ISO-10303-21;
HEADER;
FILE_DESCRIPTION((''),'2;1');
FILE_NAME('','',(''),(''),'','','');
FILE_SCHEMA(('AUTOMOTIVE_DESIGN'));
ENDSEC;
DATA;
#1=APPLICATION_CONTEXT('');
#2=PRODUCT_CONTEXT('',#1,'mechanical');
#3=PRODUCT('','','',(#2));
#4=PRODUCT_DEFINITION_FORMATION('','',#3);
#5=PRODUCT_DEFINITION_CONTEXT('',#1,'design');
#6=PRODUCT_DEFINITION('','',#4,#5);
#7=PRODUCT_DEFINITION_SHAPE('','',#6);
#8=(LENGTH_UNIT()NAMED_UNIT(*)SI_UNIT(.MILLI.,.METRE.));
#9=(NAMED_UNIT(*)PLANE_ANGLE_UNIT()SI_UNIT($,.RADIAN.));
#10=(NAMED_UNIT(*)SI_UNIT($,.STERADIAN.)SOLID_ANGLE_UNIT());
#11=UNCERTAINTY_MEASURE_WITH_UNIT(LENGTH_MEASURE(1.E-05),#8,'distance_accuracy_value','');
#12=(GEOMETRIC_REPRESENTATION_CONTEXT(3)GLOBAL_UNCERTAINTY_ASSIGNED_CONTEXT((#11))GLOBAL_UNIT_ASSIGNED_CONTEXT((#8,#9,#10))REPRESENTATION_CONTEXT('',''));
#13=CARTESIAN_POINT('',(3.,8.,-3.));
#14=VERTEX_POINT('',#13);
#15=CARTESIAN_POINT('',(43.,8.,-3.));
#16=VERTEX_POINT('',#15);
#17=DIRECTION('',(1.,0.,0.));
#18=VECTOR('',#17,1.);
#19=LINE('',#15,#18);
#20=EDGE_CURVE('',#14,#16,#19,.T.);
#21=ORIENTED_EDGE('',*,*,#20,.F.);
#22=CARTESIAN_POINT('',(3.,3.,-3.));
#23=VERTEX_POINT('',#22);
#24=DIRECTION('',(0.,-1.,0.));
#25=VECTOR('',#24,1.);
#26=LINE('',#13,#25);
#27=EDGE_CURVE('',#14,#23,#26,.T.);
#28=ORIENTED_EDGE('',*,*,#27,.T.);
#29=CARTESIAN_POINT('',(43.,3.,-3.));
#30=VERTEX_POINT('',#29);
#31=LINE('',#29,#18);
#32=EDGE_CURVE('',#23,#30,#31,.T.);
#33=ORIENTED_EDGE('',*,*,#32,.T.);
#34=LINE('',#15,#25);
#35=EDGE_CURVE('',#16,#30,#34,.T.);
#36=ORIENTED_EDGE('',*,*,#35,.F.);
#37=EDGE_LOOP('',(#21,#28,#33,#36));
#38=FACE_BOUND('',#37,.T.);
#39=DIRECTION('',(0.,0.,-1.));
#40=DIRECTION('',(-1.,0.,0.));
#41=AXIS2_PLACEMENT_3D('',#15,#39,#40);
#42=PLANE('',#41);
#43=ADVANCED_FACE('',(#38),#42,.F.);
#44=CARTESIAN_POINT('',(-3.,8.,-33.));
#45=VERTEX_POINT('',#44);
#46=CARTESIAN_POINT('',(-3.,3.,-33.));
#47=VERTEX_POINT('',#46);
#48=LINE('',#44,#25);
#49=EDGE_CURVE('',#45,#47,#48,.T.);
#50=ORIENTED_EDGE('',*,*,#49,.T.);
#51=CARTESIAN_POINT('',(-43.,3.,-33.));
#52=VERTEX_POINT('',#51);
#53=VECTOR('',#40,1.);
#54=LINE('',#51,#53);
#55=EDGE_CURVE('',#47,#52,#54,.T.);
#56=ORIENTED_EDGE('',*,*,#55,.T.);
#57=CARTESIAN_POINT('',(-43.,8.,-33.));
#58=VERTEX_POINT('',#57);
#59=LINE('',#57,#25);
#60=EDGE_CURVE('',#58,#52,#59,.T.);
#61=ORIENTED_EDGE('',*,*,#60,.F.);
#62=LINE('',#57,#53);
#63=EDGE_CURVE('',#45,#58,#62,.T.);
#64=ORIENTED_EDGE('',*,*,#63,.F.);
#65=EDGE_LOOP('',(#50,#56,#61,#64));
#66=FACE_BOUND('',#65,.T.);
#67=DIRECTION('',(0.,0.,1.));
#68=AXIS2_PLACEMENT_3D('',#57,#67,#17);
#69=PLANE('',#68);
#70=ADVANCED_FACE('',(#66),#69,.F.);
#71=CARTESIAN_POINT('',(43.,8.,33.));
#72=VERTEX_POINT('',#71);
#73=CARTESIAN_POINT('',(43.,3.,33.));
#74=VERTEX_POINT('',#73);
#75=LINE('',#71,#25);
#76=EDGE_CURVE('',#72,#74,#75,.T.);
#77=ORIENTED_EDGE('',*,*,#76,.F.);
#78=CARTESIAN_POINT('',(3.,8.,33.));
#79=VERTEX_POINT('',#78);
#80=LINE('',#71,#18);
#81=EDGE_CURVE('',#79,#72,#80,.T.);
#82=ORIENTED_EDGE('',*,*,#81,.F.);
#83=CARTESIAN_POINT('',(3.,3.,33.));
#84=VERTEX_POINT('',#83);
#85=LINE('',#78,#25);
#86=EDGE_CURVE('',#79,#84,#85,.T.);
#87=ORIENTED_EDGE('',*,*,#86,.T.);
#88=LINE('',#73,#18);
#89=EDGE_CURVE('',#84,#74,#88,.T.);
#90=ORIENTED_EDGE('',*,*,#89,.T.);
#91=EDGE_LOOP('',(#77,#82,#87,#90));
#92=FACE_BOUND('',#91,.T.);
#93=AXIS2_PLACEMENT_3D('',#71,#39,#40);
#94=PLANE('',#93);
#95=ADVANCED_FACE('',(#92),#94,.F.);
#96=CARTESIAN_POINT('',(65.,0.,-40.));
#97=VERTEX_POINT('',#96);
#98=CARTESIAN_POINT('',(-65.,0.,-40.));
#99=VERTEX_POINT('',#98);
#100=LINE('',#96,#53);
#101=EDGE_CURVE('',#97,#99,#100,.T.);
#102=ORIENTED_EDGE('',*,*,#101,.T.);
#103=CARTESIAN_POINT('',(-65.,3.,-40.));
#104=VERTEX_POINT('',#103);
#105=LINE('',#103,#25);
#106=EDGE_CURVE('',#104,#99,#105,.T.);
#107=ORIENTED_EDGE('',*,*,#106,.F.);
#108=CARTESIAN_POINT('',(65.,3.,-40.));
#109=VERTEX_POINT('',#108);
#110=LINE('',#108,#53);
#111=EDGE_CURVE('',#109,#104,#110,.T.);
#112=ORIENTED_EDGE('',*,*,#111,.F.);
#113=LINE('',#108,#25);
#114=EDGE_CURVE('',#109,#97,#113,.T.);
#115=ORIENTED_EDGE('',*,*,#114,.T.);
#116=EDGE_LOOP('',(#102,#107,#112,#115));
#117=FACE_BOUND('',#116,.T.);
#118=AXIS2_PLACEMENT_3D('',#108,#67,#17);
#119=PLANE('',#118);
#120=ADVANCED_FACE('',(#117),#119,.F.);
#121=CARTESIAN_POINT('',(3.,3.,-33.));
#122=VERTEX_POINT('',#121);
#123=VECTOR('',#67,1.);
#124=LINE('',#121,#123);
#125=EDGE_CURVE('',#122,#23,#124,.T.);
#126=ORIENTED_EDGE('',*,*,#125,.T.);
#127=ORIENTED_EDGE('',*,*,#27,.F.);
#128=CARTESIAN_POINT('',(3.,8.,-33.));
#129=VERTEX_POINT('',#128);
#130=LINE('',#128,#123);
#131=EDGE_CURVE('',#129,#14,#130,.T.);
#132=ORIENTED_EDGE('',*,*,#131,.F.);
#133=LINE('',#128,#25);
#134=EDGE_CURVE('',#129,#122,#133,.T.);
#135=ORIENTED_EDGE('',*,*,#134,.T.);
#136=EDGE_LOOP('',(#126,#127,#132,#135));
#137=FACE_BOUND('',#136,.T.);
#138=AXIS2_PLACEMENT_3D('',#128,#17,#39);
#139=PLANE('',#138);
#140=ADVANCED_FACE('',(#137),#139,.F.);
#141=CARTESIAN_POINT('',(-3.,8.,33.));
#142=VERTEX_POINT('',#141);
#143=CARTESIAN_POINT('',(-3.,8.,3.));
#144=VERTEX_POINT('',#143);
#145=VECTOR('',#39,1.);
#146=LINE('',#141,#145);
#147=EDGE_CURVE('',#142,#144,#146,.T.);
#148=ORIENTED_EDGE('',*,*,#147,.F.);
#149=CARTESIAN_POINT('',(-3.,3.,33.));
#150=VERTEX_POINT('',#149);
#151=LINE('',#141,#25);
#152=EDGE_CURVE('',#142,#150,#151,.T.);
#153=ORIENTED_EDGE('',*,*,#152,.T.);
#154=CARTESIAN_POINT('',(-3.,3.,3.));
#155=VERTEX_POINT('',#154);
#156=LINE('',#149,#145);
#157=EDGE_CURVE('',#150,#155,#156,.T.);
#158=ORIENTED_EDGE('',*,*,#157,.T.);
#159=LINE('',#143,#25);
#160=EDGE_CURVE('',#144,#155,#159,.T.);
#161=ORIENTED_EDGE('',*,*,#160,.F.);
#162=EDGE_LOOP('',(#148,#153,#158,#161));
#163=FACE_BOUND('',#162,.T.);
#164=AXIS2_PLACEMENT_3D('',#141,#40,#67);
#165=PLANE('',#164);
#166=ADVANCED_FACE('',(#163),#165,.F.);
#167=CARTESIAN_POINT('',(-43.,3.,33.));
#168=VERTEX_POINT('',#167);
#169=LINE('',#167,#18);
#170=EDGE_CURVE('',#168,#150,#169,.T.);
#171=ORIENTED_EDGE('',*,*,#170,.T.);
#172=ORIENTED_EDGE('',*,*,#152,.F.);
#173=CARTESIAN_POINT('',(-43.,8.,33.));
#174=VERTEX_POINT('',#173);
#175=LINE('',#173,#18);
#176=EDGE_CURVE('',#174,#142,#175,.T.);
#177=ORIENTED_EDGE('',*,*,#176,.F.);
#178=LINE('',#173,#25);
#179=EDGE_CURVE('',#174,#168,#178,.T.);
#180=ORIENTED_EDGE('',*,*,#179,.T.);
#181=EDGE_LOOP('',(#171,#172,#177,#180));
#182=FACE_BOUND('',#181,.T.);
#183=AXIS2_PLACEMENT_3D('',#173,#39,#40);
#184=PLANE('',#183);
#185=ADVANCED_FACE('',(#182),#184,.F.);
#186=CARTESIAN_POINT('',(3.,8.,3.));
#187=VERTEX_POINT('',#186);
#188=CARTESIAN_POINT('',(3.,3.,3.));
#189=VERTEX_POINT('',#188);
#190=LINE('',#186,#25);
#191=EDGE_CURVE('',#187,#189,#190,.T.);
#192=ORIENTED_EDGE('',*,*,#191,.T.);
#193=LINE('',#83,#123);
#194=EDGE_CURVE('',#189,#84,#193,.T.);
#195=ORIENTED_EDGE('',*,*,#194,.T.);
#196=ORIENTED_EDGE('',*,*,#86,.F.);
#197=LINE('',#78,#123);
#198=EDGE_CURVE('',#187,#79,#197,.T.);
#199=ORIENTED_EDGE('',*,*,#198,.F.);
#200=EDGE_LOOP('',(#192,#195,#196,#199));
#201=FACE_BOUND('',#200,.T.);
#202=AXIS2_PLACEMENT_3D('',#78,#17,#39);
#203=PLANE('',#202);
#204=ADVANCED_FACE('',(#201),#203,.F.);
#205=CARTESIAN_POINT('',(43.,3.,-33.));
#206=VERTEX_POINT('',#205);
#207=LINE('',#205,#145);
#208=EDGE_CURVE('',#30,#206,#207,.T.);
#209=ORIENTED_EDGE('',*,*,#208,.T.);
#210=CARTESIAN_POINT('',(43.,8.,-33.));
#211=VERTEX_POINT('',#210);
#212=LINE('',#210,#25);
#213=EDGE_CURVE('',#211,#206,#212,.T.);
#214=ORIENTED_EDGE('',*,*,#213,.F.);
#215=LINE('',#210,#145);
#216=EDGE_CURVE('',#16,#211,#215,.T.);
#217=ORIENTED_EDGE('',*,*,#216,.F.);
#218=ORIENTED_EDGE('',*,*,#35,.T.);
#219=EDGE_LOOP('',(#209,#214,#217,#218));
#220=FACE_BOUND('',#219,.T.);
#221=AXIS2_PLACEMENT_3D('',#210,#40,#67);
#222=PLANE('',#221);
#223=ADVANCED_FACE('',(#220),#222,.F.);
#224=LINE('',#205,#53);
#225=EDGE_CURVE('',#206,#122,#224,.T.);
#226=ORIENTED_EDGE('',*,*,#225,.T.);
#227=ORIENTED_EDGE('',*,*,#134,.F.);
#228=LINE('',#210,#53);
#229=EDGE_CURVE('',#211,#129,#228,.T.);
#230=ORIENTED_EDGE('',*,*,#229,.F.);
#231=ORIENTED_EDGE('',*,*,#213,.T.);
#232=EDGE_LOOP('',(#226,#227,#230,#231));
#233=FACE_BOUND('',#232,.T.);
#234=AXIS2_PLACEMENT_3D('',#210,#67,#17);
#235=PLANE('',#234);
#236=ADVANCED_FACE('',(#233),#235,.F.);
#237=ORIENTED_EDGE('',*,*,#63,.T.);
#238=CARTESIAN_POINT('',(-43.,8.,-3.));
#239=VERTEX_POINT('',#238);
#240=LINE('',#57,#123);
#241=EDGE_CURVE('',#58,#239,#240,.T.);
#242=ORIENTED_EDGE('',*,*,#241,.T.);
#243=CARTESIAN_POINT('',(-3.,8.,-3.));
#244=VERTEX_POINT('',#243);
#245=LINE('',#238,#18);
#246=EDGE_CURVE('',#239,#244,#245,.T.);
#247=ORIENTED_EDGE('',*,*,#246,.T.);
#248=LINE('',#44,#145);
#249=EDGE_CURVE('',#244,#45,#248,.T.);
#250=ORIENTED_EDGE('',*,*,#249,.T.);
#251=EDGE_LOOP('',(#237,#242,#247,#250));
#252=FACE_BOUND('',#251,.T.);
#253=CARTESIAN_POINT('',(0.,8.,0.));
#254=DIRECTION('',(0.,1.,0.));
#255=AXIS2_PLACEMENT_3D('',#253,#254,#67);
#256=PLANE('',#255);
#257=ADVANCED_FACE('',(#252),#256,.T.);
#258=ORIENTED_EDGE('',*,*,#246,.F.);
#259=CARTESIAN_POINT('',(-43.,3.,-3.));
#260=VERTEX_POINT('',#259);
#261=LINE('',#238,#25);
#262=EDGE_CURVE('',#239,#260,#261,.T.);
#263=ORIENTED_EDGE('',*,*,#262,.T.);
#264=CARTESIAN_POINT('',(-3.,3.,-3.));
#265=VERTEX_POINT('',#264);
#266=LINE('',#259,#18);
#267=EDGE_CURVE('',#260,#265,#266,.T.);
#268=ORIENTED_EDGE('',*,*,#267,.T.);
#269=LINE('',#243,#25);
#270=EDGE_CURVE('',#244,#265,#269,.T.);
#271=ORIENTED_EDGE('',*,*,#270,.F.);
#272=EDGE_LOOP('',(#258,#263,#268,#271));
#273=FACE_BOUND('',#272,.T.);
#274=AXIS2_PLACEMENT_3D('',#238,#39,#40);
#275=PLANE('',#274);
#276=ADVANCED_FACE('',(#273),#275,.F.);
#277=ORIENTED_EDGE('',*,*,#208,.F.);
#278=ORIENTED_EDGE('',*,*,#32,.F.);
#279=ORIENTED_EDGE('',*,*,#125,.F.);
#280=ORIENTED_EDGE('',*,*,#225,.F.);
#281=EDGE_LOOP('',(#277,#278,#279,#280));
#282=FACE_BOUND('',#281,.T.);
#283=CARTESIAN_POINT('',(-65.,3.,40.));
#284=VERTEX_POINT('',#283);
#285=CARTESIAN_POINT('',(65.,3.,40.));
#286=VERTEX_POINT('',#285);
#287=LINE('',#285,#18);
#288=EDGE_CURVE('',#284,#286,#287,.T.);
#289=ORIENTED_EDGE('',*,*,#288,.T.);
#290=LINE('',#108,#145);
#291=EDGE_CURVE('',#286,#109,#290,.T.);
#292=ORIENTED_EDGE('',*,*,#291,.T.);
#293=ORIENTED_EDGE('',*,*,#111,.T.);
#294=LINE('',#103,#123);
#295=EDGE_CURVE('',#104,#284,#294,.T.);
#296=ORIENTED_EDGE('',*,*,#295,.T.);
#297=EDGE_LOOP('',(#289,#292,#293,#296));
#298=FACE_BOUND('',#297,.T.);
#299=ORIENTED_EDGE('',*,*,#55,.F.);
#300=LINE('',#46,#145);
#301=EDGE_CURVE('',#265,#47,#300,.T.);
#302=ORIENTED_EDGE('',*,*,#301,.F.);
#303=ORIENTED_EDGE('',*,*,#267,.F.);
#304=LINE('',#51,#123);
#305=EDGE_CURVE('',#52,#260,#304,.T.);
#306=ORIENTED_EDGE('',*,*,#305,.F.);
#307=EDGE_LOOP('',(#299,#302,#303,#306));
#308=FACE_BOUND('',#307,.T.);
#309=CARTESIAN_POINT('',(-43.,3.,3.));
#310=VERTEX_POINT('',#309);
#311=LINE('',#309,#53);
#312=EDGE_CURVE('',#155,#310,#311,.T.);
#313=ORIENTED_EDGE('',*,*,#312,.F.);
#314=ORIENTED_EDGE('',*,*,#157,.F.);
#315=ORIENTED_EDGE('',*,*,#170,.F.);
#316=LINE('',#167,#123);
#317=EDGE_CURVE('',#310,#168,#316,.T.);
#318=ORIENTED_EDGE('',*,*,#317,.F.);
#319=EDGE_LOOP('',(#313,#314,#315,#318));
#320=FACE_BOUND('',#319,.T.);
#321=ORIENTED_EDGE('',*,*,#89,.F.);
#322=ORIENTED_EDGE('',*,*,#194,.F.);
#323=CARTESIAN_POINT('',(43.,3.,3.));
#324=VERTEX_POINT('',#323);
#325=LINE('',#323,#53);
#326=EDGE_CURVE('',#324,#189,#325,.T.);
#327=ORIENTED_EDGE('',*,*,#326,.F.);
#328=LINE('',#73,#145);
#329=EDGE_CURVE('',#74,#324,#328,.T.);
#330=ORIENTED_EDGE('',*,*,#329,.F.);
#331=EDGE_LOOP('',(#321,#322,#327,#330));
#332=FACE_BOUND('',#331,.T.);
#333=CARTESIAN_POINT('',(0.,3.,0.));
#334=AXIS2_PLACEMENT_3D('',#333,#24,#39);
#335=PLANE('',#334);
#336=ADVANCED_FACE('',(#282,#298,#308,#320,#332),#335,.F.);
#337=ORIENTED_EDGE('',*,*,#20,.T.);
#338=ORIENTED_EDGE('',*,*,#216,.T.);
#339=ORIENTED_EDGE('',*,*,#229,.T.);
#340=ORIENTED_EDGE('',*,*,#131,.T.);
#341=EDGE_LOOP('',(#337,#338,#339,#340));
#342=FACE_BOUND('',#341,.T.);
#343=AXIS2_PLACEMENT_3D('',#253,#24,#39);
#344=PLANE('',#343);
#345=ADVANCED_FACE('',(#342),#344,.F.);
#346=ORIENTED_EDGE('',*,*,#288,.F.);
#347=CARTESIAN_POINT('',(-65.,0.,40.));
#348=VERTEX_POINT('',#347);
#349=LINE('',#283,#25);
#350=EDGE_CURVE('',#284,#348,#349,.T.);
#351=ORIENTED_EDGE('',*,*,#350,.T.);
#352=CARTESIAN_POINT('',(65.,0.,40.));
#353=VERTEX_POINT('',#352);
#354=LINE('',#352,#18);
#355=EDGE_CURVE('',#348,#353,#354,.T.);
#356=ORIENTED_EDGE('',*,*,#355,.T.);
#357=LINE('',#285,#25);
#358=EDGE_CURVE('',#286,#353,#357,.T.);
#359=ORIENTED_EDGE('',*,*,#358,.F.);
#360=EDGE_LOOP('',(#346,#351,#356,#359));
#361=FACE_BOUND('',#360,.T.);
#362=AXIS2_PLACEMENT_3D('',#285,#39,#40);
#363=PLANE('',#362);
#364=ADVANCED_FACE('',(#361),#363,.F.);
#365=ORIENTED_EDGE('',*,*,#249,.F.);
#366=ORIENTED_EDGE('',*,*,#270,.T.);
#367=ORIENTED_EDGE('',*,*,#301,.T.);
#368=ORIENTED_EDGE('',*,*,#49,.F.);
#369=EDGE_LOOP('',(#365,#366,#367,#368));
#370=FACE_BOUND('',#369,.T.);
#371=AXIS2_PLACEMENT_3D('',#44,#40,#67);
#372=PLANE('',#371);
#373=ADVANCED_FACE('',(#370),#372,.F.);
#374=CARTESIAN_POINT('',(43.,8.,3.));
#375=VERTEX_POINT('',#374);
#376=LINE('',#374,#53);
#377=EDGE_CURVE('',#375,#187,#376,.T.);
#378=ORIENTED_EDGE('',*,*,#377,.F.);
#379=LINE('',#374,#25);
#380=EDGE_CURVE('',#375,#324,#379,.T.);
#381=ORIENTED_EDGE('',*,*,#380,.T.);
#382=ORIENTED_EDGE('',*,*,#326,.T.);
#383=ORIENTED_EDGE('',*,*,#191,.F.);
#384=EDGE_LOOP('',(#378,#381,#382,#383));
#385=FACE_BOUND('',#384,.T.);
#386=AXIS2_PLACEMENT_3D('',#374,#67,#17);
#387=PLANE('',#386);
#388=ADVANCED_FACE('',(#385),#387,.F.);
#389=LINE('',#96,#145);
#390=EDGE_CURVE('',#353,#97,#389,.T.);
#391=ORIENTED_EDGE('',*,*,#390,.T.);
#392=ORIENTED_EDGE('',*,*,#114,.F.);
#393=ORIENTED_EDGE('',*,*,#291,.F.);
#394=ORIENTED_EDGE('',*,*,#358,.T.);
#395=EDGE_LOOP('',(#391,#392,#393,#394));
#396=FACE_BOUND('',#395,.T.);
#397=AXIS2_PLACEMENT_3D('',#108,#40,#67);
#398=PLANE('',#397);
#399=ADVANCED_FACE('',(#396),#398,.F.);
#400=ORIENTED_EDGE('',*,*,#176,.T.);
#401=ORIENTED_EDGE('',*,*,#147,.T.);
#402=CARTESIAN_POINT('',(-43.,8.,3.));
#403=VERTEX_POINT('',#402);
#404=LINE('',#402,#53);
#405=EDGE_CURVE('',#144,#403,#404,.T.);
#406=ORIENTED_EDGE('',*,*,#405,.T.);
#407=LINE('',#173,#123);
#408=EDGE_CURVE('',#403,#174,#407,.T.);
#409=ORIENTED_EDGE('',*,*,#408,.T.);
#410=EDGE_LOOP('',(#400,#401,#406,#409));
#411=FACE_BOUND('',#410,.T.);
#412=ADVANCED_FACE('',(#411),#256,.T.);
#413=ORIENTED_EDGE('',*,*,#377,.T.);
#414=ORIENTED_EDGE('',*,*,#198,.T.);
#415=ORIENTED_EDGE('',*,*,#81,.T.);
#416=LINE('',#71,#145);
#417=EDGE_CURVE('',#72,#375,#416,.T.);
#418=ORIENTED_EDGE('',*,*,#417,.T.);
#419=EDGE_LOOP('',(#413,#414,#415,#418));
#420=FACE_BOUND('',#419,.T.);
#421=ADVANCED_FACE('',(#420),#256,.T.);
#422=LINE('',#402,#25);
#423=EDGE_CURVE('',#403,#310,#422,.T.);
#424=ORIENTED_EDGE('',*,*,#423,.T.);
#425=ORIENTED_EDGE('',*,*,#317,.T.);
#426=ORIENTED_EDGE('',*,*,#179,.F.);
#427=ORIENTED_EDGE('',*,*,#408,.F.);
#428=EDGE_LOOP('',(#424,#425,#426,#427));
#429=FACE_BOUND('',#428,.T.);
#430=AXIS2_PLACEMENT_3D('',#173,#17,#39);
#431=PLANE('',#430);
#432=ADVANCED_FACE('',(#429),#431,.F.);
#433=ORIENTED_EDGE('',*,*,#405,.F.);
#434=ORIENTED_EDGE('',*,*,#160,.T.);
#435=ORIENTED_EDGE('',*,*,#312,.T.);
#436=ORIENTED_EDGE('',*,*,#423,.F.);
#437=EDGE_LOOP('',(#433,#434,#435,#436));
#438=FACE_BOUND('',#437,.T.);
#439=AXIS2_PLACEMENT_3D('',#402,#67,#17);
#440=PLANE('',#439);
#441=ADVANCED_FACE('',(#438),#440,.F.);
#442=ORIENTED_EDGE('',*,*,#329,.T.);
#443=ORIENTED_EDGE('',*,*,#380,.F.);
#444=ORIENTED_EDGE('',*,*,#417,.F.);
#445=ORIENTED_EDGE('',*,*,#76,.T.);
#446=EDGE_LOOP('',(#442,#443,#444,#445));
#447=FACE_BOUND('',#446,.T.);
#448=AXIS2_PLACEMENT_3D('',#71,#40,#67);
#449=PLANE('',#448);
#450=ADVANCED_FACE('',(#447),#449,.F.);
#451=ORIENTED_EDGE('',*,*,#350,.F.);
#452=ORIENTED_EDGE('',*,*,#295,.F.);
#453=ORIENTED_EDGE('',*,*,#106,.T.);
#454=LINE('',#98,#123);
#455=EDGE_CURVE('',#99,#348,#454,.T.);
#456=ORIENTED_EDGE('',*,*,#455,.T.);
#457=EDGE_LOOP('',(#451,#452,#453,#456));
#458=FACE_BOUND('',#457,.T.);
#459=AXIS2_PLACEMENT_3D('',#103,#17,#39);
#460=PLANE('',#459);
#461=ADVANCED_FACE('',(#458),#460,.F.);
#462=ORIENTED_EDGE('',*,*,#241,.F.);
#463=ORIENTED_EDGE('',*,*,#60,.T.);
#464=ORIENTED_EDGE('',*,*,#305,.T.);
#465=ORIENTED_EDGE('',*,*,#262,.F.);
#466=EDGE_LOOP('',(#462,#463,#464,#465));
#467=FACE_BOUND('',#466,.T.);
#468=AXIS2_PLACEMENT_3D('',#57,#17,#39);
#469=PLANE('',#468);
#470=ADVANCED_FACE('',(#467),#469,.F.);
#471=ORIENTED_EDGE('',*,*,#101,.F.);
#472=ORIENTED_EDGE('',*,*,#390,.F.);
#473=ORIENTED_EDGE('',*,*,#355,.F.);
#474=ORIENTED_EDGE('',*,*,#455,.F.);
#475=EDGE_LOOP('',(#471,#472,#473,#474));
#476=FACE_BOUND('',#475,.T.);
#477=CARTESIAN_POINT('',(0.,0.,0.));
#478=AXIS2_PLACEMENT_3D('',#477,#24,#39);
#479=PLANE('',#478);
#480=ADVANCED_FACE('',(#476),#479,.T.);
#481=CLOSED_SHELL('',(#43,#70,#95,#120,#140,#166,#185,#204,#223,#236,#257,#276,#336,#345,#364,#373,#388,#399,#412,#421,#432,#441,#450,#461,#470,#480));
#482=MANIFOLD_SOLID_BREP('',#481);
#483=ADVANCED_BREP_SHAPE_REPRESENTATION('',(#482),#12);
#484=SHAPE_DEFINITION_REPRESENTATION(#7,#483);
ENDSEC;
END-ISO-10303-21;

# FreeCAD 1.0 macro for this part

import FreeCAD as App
import Part
import Sketcher
Q = App.Units.Quantity


def add_polygon(sketch, points):
    """Adds a closed chain of lines whose ends are joined by coincident constraints."""
    first, n = sketch.GeometryCount, len(points)
    for a, b in zip(points, points[1:] + points[:1]):
        sketch.addGeometry(Part.LineSegment(App.Vector(*a, 0), App.Vector(*b, 0)), False)
    for i in range(n):
        sketch.addConstraint(Sketcher.Constraint("Coincident", first + i, 2, first + (i + 1) % n, 1))

doc = App.newDocument("Part")
params = doc.addObject("Spreadsheet::Sheet", "Params")
for row, (alias, value) in enumerate([
    ("sketch1_width", "130 mm"),
    ("sketch1_height", "80 mm"),
    ("pad1_length", "3 mm"),
    ("sketch2_width", "40 mm"),
    ("sketch2_height", "30 mm"),
    ("pad2_length", "5 mm"),
], start=1):
    params.set(f"A{row}", alias)
    params.set(f"B{row}", "=" + value)
    params.setAlias(f"B{row}", alias)

body = doc.addObject("PartDesign::Body", "Body")

# Sketch on XZ plane
sketch1 = doc.addObject("Sketcher::SketchObject", "Sketch")
body.addObject(sketch1)
sketch1.AttachmentSupport = (doc.XZ_Plane, [""])
sketch1.MapMode = "FlatFace"
add_polygon(sketch1, [(-65, -40), (-65, 40), (65, 40), (65, -40)])  # lines 0-3
sketch1.addConstraint(Sketcher.Constraint("Vertical", 0))
sketch1.addConstraint(Sketcher.Constraint("Horizontal", 1))
sketch1.addConstraint(Sketcher.Constraint("Vertical", 2))
sketch1.addConstraint(Sketcher.Constraint("Horizontal", 3))
sketch1.addConstraint(Sketcher.Constraint("Symmetric", 0, 2, 2, 2, -1, 1))
sketch1.addConstraint(Sketcher.Constraint("DistanceX", 1, 1, 1, 2, Q("130 mm")))
sketch1.addConstraint(Sketcher.Constraint("DistanceY", 0, 1, 0, 2, Q("80 mm")))
sketch1.setExpression("Constraints[9]", "Params.sketch1_width")
sketch1.setExpression("Constraints[10]", "Params.sketch1_height")
pad1 = doc.addObject("PartDesign::Pad", "Pad")
body.addObject(pad1)
pad1.Profile = sketch1
pad1.setExpression("Length", "Params.pad1_length")
pad1.Reversed = True

# Sketch on XZ plane
sketch2 = doc.addObject("Sketcher::SketchObject", "Sketch001")
body.addObject(sketch2)
sketch2.AttachmentSupport = (doc.XZ_Plane, [""])
sketch2.MapMode = "FlatFace"
sketch2.AttachmentOffset = App.Placement(App.Vector(0, 0, -3), App.Rotation())
add_polygon(sketch2, [(-43, -33), (-43, -3), (-3, -3), (-3, -33)])  # lines 0-3
add_polygon(sketch2, [(3, -33), (3, -3), (43, -3), (43, -33)])  # lines 4-7
add_polygon(sketch2, [(3, 3), (3, 33), (43, 33), (43, 3)])  # lines 8-11
add_polygon(sketch2, [(-43, 3), (-43, 33), (-3, 33), (-3, 3)])  # lines 12-15
sketch2.addConstraint(Sketcher.Constraint("Vertical", 0))
sketch2.addConstraint(Sketcher.Constraint("Horizontal", 1))
sketch2.addConstraint(Sketcher.Constraint("Vertical", 2))
sketch2.addConstraint(Sketcher.Constraint("Horizontal", 3))
sketch2.addConstraint(Sketcher.Constraint("Vertical", 4))
sketch2.addConstraint(Sketcher.Constraint("Horizontal", 5))
sketch2.addConstraint(Sketcher.Constraint("Vertical", 6))
sketch2.addConstraint(Sketcher.Constraint("Horizontal", 7))
sketch2.addConstraint(Sketcher.Constraint("Vertical", 8))
sketch2.addConstraint(Sketcher.Constraint("Horizontal", 9))
sketch2.addConstraint(Sketcher.Constraint("Vertical", 10))
sketch2.addConstraint(Sketcher.Constraint("Horizontal", 11))
sketch2.addConstraint(Sketcher.Constraint("Vertical", 12))
sketch2.addConstraint(Sketcher.Constraint("Horizontal", 13))
sketch2.addConstraint(Sketcher.Constraint("Vertical", 14))
sketch2.addConstraint(Sketcher.Constraint("Horizontal", 15))
sketch2.addConstraint(Sketcher.Constraint("Symmetric", 2, 2, 8, 2, -1, 1))
sketch2.addConstraint(Sketcher.Constraint("Symmetric", 0, 2, 10, 2, -1, 1))
sketch2.addConstraint(Sketcher.Constraint("Symmetric", 6, 2, 12, 2, -1, 1))
sketch2.addConstraint(Sketcher.Constraint("Symmetric", 4, 2, 14, 2, -1, 1))
sketch2.addConstraint(Sketcher.Constraint("Symmetric", 1, 2, 4, 2, -2))
sketch2.addConstraint(Sketcher.Constraint("Symmetric", 3, 2, 6, 2, -2))
sketch2.addConstraint(Sketcher.Constraint("DistanceX", 1, 1, 1, 2, Q("40 mm")))
sketch2.addConstraint(Sketcher.Constraint("DistanceY", 0, 1, 0, 2, Q("30 mm")))
sketch2.addConstraint(Sketcher.Constraint("DistanceX", 0, 2, -1, 1, Q("43 mm")))
sketch2.addConstraint(Sketcher.Constraint("DistanceY", 0, 2, -1, 1, Q("3 mm")))
sketch2.setExpression("Constraints[38]", "Params.sketch2_width")
sketch2.setExpression("Constraints[39]", "Params.sketch2_height")
pad2 = doc.addObject("PartDesign::Pad", "Pad001")
body.addObject(pad2)
pad2.Profile = sketch2
pad2.setExpression("Length", "Params.pad2_length")
pad2.Reversed = True

doc.recompute()
